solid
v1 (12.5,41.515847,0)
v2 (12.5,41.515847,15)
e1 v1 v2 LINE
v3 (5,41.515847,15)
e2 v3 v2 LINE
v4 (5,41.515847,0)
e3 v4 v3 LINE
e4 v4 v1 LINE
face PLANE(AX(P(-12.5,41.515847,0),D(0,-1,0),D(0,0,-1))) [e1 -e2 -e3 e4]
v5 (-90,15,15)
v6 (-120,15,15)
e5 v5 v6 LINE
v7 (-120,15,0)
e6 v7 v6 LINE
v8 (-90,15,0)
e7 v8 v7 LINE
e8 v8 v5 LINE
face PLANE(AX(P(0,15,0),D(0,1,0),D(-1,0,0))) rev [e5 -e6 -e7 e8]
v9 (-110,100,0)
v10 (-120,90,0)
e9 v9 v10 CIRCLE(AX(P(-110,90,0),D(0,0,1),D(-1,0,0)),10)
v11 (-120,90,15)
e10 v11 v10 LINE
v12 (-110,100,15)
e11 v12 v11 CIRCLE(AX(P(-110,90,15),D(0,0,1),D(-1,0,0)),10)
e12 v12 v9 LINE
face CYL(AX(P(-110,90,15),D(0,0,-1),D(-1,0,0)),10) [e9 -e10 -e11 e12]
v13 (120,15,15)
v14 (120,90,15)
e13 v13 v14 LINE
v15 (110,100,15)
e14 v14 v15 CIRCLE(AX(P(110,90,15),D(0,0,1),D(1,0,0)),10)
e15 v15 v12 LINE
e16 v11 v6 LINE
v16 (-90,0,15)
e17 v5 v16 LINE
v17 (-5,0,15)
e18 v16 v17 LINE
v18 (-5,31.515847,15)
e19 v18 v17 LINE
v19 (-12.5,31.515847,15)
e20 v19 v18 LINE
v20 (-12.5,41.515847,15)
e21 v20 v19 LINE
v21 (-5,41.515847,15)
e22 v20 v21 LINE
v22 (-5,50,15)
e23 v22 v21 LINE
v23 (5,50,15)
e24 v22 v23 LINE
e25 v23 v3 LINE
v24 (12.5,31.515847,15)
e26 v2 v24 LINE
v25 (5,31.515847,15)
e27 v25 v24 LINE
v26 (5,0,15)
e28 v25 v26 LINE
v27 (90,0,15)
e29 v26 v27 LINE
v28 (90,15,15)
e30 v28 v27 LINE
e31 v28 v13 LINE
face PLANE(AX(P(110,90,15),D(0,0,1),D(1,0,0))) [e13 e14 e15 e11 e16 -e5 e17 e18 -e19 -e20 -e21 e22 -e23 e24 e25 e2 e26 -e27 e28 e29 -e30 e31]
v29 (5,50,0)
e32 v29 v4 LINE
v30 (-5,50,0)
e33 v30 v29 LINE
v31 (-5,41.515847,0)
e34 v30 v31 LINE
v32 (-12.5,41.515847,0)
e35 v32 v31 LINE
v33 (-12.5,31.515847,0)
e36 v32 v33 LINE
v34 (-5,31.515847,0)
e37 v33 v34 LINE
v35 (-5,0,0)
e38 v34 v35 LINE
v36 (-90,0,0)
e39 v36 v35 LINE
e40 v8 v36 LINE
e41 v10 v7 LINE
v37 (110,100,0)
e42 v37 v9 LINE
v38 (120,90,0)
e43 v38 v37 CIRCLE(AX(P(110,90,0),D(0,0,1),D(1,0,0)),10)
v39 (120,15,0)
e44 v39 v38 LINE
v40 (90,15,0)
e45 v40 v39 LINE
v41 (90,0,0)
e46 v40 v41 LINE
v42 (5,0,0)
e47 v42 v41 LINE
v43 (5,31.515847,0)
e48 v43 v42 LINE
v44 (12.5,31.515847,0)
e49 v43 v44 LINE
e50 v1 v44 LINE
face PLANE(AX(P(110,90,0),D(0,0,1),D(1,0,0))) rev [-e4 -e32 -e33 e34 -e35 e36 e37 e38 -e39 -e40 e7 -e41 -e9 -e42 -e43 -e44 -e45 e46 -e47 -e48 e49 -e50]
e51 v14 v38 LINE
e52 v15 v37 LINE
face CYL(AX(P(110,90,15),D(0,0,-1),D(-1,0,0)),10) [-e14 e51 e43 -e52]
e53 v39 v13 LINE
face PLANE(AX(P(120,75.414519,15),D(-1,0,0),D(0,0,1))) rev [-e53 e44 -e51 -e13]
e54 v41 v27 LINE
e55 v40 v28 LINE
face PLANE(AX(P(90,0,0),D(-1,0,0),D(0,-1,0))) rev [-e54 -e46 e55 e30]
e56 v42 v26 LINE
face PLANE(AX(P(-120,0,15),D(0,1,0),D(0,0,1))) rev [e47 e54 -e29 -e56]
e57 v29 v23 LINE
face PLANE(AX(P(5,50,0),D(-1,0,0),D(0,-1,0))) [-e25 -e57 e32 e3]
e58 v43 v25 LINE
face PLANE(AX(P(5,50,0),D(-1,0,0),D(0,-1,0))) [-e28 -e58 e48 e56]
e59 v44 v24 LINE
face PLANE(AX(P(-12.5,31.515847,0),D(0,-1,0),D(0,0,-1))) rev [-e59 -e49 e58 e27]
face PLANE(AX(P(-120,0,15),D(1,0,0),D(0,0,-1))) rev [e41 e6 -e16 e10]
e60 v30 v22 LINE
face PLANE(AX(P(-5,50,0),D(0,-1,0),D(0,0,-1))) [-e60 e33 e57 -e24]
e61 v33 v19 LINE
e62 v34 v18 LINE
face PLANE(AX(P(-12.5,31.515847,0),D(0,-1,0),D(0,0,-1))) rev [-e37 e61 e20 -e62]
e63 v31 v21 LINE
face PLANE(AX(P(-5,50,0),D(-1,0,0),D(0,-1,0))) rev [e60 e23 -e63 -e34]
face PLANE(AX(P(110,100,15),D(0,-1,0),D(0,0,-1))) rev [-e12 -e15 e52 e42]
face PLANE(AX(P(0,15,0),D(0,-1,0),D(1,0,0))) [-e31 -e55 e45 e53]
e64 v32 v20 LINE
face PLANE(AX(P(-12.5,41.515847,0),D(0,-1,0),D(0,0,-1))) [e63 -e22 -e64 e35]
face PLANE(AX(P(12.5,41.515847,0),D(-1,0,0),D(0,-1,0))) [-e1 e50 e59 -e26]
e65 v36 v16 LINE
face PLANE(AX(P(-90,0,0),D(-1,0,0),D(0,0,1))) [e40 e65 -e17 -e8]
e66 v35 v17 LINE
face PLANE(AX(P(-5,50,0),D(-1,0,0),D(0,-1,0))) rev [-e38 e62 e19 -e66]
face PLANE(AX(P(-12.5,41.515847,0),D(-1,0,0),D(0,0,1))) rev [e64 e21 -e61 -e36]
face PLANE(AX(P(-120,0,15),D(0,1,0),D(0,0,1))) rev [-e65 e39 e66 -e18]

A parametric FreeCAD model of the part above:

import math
import FreeCAD as App
import Part
import Sketcher

V = App.Vector


def add_polygon(sketch, points):
    """Adds a closed chain of lines whose ends are joined by coincident constraints."""
    first, n = sketch.GeometryCount, len(points)
    for a, b in zip(points, points[1:] + points[:1]):
        sketch.addGeometry(Part.LineSegment(App.Vector(*a, 0), App.Vector(*b, 0)), False)
    for i in range(n):
        sketch.addConstraint(Sketcher.Constraint("Coincident", first + i, 2, first + (i + 1) % n, 1))

doc = App.newDocument("Part")
body = doc.addObject("PartDesign::Body", "Body")

# Sketch on XY plane
sketch1 = body.newObject("Sketcher::SketchObject", "Sketch")
sketch1.AttachmentSupport = (doc.getObject("XY_Plane"), [""])
sketch1.MapMode = "FlatFace"
sketch1.addGeometry([
    Part.LineSegment(V(-120, 0, 0), V(120, 0, 0)),  # 0
    Part.LineSegment(V(120, 0, 0), V(120, 90, 0)),  # 1
    Part.ArcOfCircle(Part.Circle(V(110, 90, 0), V(0, 0, 1), 10), math.radians(0), math.radians(90)),  # 2
    Part.LineSegment(V(110, 100, 0), V(-110, 100, 0)),  # 3
    Part.ArcOfCircle(Part.Circle(V(-110, 90, 0), V(0, 0, 1), 10), math.radians(90), math.radians(180)),  # 4
    Part.LineSegment(V(-120, 90, 0), V(-120, 0, 0)),  # 5
], False)
sketch1.addConstraint([
    Sketcher.Constraint("Coincident", 0, 2, 1, 1),
    Sketcher.Constraint("Tangent", 1, 2, 2, 1),
    Sketcher.Constraint("Tangent", 2, 2, 3, 1),
    Sketcher.Constraint("Tangent", 3, 2, 4, 1),
    Sketcher.Constraint("Tangent", 4, 2, 5, 1),
    Sketcher.Constraint("Coincident", 5, 2, 0, 1),
    Sketcher.Constraint("Horizontal", 0),
    Sketcher.Constraint("Vertical", 1),
    Sketcher.Constraint("Horizontal", 3),
    Sketcher.Constraint("Vertical", 5),
    Sketcher.Constraint("Equal", 2, 4),
    Sketcher.Constraint("Symmetric", 0, 2, 5, 2, -1, 1),
    Sketcher.Constraint("Radius", 2, 10.0),
    Sketcher.Constraint("DistanceX", 0, 1, 0, 2, 240.0),
    Sketcher.Constraint("DistanceY", 1, 1, 1, 2, 90.0),
])
pad1 = body.newObject("PartDesign::Pad", "Pad")
pad1.Profile = sketch1
pad1.Length = 15

# Sketch on XY plane
sketch2 = body.newObject("Sketcher::SketchObject", "Sketch001")
sketch2.AttachmentSupport = (doc.getObject("XY_Plane"), [""])
sketch2.MapMode = "FlatFace"
sketch2.AttachmentOffset = App.Placement(V(0, 0, 15), App.Rotation())
add_polygon(sketch2, [(-120, 15), (-120, 0), (-90, 0), (-90, 15)])  # lines 0-3
add_polygon(sketch2, [(-5, 31.515847), (-5, 0), (5, 0), (5, 31.515847), (12.5, 31.515847), (12.5, 41.515847), (5, 41.515847), (5, 50), (-5, 50), (-5, 41.515847), (-12.5, 41.515847), (-12.5, 31.515847)])  # lines 4-15
add_polygon(sketch2, [(90, 15), (90, 0), (120, 0), (120, 15)])  # lines 16-19
sketch2.addConstraint([
    Sketcher.Constraint("Vertical", 0),
    Sketcher.Constraint("Horizontal", 1),
    Sketcher.Constraint("Vertical", 2),
    Sketcher.Constraint("Horizontal", 3),
    Sketcher.Constraint("Vertical", 4),
    Sketcher.Constraint("Horizontal", 5),
    Sketcher.Constraint("Vertical", 6),
    Sketcher.Constraint("Horizontal", 7),
    Sketcher.Constraint("Vertical", 8),
    Sketcher.Constraint("Horizontal", 9),
    Sketcher.Constraint("Vertical", 10),
    Sketcher.Constraint("Horizontal", 11),
    Sketcher.Constraint("Vertical", 12),
    Sketcher.Constraint("Horizontal", 13),
    Sketcher.Constraint("Vertical", 14),
    Sketcher.Constraint("Horizontal", 15),
    Sketcher.Constraint("Vertical", 16),
    Sketcher.Constraint("Horizontal", 17),
    Sketcher.Constraint("Vertical", 18),
    Sketcher.Constraint("Horizontal", 19),
    Sketcher.Constraint("Symmetric", 4, 2, 5, 2, -1, 1),
    Sketcher.Constraint("Symmetric", 1, 2, 16, 2, -1, 1),
    Sketcher.Constraint("Symmetric", 9, 2, 12, 2, -2),
    Sketcher.Constraint("Symmetric", 7, 2, 14, 2, -2),
    Sketcher.Constraint("Symmetric", 0, 2, 17, 2, -2),
    Sketcher.Constraint("Horizontal", 3, 2, 18, 2),
    Sketcher.Constraint("Vertical", 6, 2, 9, 2),
    Sketcher.Constraint("Equal", 11, 8),
    Sketcher.Constraint("DistanceX", 1, 1, 1, 2, 30.0),
    Sketcher.Constraint("DistanceX", 5, 1, 5, 2, 10.0),
    Sketcher.Constraint("DistanceY", 0, 2, 0, 1, 15.0),
    Sketcher.Constraint("DistanceX", 7, 1, 7, 2, 7.5),
    Sketcher.Constraint("DistanceX", 0, 2, -1, 1, 120.0),
    Sketcher.Constraint("DistanceY", -1, 1, 10, 2, 50.0),
    Sketcher.Constraint("DistanceY", 4, 2, 4, 1, 31.515847),
])
pocket1 = body.newObject("PartDesign::Pocket", "Pocket")
pocket1.Profile = sketch2
pocket1.Length = 15

doc.recompute()
